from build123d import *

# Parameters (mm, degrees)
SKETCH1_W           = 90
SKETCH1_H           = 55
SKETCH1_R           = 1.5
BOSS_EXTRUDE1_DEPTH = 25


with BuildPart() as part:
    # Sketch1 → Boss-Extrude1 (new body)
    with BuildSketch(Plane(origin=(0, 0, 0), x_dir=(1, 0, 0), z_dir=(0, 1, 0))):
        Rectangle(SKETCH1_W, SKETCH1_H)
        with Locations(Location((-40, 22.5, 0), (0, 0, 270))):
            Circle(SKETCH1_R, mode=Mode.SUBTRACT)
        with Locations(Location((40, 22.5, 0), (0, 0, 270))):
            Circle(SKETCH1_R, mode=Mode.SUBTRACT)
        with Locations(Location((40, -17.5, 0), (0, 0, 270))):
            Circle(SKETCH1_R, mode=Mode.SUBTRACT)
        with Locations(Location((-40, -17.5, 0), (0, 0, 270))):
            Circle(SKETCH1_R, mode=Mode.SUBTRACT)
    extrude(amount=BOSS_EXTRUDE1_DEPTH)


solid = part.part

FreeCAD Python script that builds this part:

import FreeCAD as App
import Part
import Sketcher
from FreeCAD import Vector
Q = App.Units.Quantity


def add_polygon(sketch, points):
    """Adds a closed chain of lines whose ends are joined by coincident constraints."""
    first, n = sketch.GeometryCount, len(points)
    for a, b in zip(points, points[1:] + points[:1]):
        sketch.addGeometry(Part.LineSegment(App.Vector(*a, 0), App.Vector(*b, 0)), False)
    for i in range(n):
        sketch.addConstraint(Sketcher.Constraint("Coincident", first + i, 2, first + (i + 1) % n, 1))

doc = App.newDocument("Part")
params = doc.addObject("Spreadsheet::Sheet", "Params")
for row, (alias, value) in enumerate([
    ("sketch1_diameter", "3 mm"),
    ("sketch1_width", "90 mm"),
    ("sketch1_height", "55 mm"),
    ("pad1_length", "25 mm"),
], start=1):
    params.set(f"A{row}", alias)
    params.set(f"B{row}", "=" + value)
    params.setAlias(f"B{row}", alias)

body = doc.addObject("PartDesign::Body", "Body")

sketch1 = body.newObject("Sketcher::SketchObject", "Sketch")
sketch1.AttachmentSupport = (doc.getObject("XZ_Plane"), [""])
sketch1.MapMode = "FlatFace"
add_polygon(sketch1, [(-45, -27.5), (-45, 27.5), (45, 27.5), (45, -27.5)])
sketch1.addGeometry(Part.Circle(Vector(-40, 17.5, 0), Vector(0, 0, 1), 1.5), False)
sketch1.addGeometry(Part.Circle(Vector(40, 17.5, 0), Vector(0, 0, 1), 1.5), False)
sketch1.addGeometry(Part.Circle(Vector(-40, -22.5, 0), Vector(0, 0, 1), 1.5), False)
sketch1.addGeometry(Part.Circle(Vector(40, -22.5, 0), Vector(0, 0, 1), 1.5), False)
sketch1.addConstraint([
    Sketcher.Constraint("Vertical", 0),
    Sketcher.Constraint("Horizontal", 1),
    Sketcher.Constraint("Vertical", 2),
    Sketcher.Constraint("Horizontal", 3),
    Sketcher.Constraint("Equal", 4, 5),
    Sketcher.Constraint("Equal", 5, 6),
    Sketcher.Constraint("Equal", 6, 7),
    Sketcher.Constraint("Symmetric", 0, 2, 2, 2, -1, 1),
    Sketcher.Constraint("Symmetric", 4, 3, 5, 3, -2),
    Sketcher.Constraint("Symmetric", 6, 3, 7, 3, -2),
    Sketcher.Constraint("Vertical", 4, 3, 6, 3),
    Sketcher.Constraint("Diameter", 4, Q("3 mm")),
    Sketcher.Constraint("DistanceX", 1, 1, 1, 2, Q("90 mm")),
    Sketcher.Constraint("DistanceY", 0, 1, 0, 2, Q("55 mm")),
    Sketcher.Constraint("DistanceX", 4, 3, -1, 1, Q("40 mm")),
    Sketcher.Constraint("DistanceY", 6, 3, 4, 3, Q("40 mm")),
    Sketcher.Constraint("DistanceY", 4, 3, 0, 2, Q("10 mm")),
])
sketch1.setExpression("Constraints[15]", "Params.sketch1_diameter")
sketch1.setExpression("Constraints[16]", "Params.sketch1_width")
sketch1.setExpression("Constraints[17]", "Params.sketch1_height")
pad1 = body.newObject("PartDesign::Pad", "Pad")
pad1.Profile = sketch1
pad1.setExpression("Length", "Params.pad1_length")
pad1.Reversed = True

doc.recompute()
